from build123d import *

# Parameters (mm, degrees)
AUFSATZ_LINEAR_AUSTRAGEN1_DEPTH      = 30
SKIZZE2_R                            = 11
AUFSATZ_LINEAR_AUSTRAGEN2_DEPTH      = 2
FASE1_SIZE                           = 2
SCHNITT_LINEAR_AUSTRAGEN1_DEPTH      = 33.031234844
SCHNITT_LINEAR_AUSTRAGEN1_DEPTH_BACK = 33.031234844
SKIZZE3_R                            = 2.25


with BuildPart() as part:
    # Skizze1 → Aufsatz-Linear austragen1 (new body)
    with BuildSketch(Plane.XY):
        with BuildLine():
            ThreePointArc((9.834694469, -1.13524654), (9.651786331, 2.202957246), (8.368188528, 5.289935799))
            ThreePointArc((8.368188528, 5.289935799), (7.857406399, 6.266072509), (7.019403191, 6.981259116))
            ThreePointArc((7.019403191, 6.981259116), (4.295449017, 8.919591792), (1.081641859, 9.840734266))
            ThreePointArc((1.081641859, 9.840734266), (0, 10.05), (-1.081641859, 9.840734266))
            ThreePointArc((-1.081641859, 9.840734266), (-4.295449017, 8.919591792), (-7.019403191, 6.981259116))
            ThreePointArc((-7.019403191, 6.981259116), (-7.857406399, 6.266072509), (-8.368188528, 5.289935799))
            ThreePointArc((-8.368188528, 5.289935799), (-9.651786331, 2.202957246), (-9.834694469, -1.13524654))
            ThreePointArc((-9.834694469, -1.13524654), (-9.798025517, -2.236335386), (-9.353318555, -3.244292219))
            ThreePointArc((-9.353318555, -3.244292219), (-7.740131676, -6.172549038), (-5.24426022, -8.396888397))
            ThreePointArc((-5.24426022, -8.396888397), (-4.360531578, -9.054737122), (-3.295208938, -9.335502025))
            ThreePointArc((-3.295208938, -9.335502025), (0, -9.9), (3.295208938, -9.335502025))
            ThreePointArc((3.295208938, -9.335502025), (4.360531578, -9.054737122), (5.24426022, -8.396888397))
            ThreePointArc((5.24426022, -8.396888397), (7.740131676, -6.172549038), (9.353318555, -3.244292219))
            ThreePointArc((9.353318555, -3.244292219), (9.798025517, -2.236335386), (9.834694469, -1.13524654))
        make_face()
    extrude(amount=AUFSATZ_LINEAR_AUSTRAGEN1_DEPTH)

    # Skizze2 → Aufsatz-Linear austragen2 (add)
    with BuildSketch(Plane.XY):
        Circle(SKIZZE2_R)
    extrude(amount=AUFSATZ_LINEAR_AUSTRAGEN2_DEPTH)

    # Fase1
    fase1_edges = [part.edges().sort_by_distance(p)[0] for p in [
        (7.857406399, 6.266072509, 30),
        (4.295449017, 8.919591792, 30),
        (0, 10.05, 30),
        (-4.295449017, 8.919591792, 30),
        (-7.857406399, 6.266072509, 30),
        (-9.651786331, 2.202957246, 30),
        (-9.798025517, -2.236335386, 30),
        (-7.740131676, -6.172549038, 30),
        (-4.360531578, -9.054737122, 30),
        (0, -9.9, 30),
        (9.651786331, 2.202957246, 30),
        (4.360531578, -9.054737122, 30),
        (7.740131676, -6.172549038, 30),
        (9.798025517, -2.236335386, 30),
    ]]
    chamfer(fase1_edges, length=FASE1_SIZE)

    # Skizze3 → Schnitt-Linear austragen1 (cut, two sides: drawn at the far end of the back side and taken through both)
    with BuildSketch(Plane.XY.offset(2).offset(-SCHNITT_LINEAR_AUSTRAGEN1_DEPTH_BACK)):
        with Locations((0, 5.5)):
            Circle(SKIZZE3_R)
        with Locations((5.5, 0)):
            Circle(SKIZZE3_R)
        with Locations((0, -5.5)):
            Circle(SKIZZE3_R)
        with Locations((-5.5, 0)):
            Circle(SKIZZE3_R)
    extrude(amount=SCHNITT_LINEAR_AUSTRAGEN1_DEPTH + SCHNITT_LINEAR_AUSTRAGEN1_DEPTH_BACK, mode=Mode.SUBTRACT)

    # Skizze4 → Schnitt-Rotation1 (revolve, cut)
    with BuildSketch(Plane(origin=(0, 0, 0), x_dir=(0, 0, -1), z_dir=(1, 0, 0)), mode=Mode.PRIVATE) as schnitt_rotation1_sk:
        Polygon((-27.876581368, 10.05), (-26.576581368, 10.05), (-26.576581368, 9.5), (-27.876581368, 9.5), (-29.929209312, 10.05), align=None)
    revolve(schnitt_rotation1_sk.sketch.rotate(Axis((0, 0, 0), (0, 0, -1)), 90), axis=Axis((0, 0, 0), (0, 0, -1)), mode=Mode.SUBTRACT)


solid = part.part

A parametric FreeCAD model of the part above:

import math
import FreeCAD as App
import Part
import Sketcher
Q = App.Units.Quantity


def edges_at(feature, points):
    """Names of the edges that pass closest to the given points."""
    edges = feature.Shape.Edges
    near = lambda p: min(range(len(edges)), key=lambda i: edges[i].distToShape(Part.Vertex(*p))[0])
    return sorted({f"Edge{near(p) + 1}" for p in points})


def add_polygon(sketch, points):
    """Adds a closed chain of lines whose ends are joined by coincident constraints."""
    first, n = sketch.GeometryCount, len(points)
    for a, b in zip(points, points[1:] + points[:1]):
        sketch.addGeometry(Part.LineSegment(App.Vector(*a, 0), App.Vector(*b, 0)), False)
    for i in range(n):
        sketch.addConstraint(Sketcher.Constraint("Coincident", first + i, 2, first + (i + 1) % n, 1))

doc = App.newDocument("Part")
params = doc.addObject("Spreadsheet::Sheet", "Params")
for row, (alias, value) in enumerate([
    ("sketch1_radius", "9.9 mm"),
    ("sketch1_radius2", "2.9 mm"),
    ("pad1_length", "30 mm"),
    ("sketch2_diameter", "22 mm"),
    ("pad2_length", "2 mm"),
    ("chamfer_size", "2 mm"),
    ("sketch3_diameter", "4.5 mm"),
    ("sketch4_height", "1.3 mm"),
    ("sketch4_width", "0.55 mm"),
    ("groove_angle", "360 deg"),
], start=1):
    params.set(f"A{row}", alias)
    params.set(f"B{row}", "=" + value)
    params.setAlias(f"B{row}", alias)

body = doc.addObject("PartDesign::Body", "Body")

sketch1 = body.newObject("Sketcher::SketchObject", "Sketch")
sketch1.AttachmentSupport = (doc.getObject("XY_Plane"), [""])
sketch1.MapMode = "FlatFace"
sketch1.addGeometry([
    Part.ArcOfCircle(Part.Circle(App.Vector(0, 0, 0), App.Vector(0, 0, 1), 9.9), math.radians(-7), math.radians(32)),
    Part.ArcOfCircle(Part.Circle(App.Vector(5.6, 4.5, 0), App.Vector(0, 0, 1), 2.9), math.radians(17), math.radians(60)),
    Part.ArcOfCircle(Part.Circle(App.Vector(0, 0, 0), App.Vector(0, 0, 1), 9.9), math.radians(45), math.radians(84)),
    Part.ArcOfCircle(Part.Circle(App.Vector(0, 7.1, 0), App.Vector(0, 0, 1), 2.9), math.radians(68), math.radians(112)),
    Part.ArcOfCircle(Part.Circle(App.Vector(0, 0, 0), App.Vector(0, 0, 1), 9.9), math.radians(96), math.radians(135)),
    Part.ArcOfCircle(Part.Circle(App.Vector(-5.6, 4.5, 0), App.Vector(0, 0, 1), 2.9), math.radians(120), math.radians(163)),
    Part.ArcOfCircle(Part.Circle(App.Vector(0, 0, 0), App.Vector(0, 0, 1), 9.9), math.radians(148), math.radians(187)),
    Part.ArcOfCircle(Part.Circle(App.Vector(-7, -1.6, 0), App.Vector(0, 0, 1), 2.9), math.radians(171), math.radians(215)),
    Part.ArcOfCircle(Part.Circle(App.Vector(0, 0, 0), App.Vector(0, 0, 1), 9.9), math.radians(-161), math.radians(-122)),
    Part.ArcOfCircle(Part.Circle(App.Vector(-3.1, -6.4, 0), App.Vector(0, 0, 1), 2.9), math.radians(-138), math.radians(-94)),
    Part.ArcOfCircle(Part.Circle(App.Vector(0, 0, 0), App.Vector(0, 0, 1), 9.9), math.radians(-109), math.radians(-71)),
    Part.ArcOfCircle(Part.Circle(App.Vector(3.1, -6.4, 0), App.Vector(0, 0, 1), 2.9), math.radians(-86), math.radians(-42)),
    Part.ArcOfCircle(Part.Circle(App.Vector(0, 0, 0), App.Vector(0, 0, 1), 9.9), math.radians(-58), math.radians(-19)),
    Part.ArcOfCircle(Part.Circle(App.Vector(7, -1.6, 0), App.Vector(0, 0, 1), 2.9), math.radians(-35), math.radians(9)),
], False)
sketch1.addConstraint([
    Sketcher.Constraint("Coincident", 0, 2, 1, 1),
    Sketcher.Constraint("Coincident", 1, 2, 2, 1),
    Sketcher.Constraint("Coincident", 2, 2, 3, 1),
    Sketcher.Constraint("Coincident", 3, 2, 4, 1),
    Sketcher.Constraint("Coincident", 4, 2, 5, 1),
    Sketcher.Constraint("Coincident", 5, 2, 6, 1),
    Sketcher.Constraint("Coincident", 6, 2, 7, 1),
    Sketcher.Constraint("Coincident", 7, 2, 8, 1),
    Sketcher.Constraint("Coincident", 8, 2, 9, 1),
    Sketcher.Constraint("Coincident", 9, 2, 10, 1),
    Sketcher.Constraint("Coincident", 10, 2, 11, 1),
    Sketcher.Constraint("Coincident", 11, 2, 12, 1),
    Sketcher.Constraint("Coincident", 12, 2, 13, 1),
    Sketcher.Constraint("Coincident", 13, 2, 0, 1),
    Sketcher.Constraint("Coincident", 0, 3, -1, 1),
    Sketcher.Constraint("Coincident", 2, 3, -1, 1),
    Sketcher.Constraint("Coincident", 4, 3, -1, 1),
    Sketcher.Constraint("Coincident", 6, 3, -1, 1),
    Sketcher.Constraint("Coincident", 8, 3, -1, 1),
    Sketcher.Constraint("Coincident", 10, 3, -1, 1),
    Sketcher.Constraint("Coincident", 12, 3, -1, 1),
    Sketcher.Constraint("Equal", 0, 2),
    Sketcher.Constraint("Equal", 1, 3),
    Sketcher.Constraint("Equal", 2, 4),
    Sketcher.Constraint("Equal", 3, 5),
    Sketcher.Constraint("Equal", 4, 6),
    Sketcher.Constraint("Equal", 5, 7),
    Sketcher.Constraint("Equal", 6, 8),
    Sketcher.Constraint("Equal", 7, 9),
    Sketcher.Constraint("Equal", 8, 10),
    Sketcher.Constraint("Equal", 9, 11),
    Sketcher.Constraint("Equal", 10, 12),
    Sketcher.Constraint("Equal", 11, 13),
    Sketcher.Constraint("Symmetric", 1, 3, 5, 3, -2),
    Sketcher.Constraint("Symmetric", 9, 3, 11, 3, -2),
    Sketcher.Constraint("Symmetric", 7, 3, 13, 3, -2),
    Sketcher.Constraint("PointOnObject", 3, 3, -2),
    Sketcher.Constraint("Radius", 0, Q("9.9 mm")),
    Sketcher.Constraint("Radius", 1, Q("2.9 mm")),
    Sketcher.Constraint("DistanceY", -1, 1, 3, 3, Q("7.15 mm")),
    Sketcher.Constraint("DistanceY", 0, 2, 2, 2, Q("4.550798 mm")),
    Sketcher.Constraint("DistanceX", 6, 2, 5, 3, Q("4.244599 mm")),
    Sketcher.Constraint("DistanceY", 6, 2, 5, 3, Q("5.593199 mm")),
    Sketcher.Constraint("DistanceX", 9, 3, -1, 1, Q("3.102269 mm")),
    Sketcher.Constraint("DistanceX", 7, 2, -1, 1, Q("9.353319 mm")),
    Sketcher.Constraint("DistanceX", 8, 2, -1, 1, Q("5.24426 mm")),
])
sketch1.setExpression("Constraints[37]", "Params.sketch1_radius")
sketch1.setExpression("Constraints[38]", "Params.sketch1_radius2")
pad1 = body.newObject("PartDesign::Pad", "Pad")
pad1.Profile = sketch1
pad1.setExpression("Length", "Params.pad1_length")

sketch2 = body.newObject("Sketcher::SketchObject", "Sketch001")
sketch2.AttachmentSupport = (doc.getObject("XY_Plane"), [""])
sketch2.MapMode = "FlatFace"
sketch2.addGeometry(Part.Circle(App.Vector(0, 0, 0), App.Vector(0, 0, 1), 11), False)
sketch2.addConstraint([
    Sketcher.Constraint("Coincident", 0, 3, -1, 1),
    Sketcher.Constraint("Diameter", 0, Q("22 mm")),
])
sketch2.setExpression("Constraints[1]", "Params.sketch2_diameter")
pad2 = body.newObject("PartDesign::Pad", "Pad001")
pad2.Profile = sketch2
pad2.setExpression("Length", "Params.pad2_length")
doc.recompute()

chamfer = body.newObject("PartDesign::Chamfer", "Chamfer")
chamfer.Base = (pad2, edges_at(pad2, [
    (7.857, 6.266, 30),
    (4.295, 8.92, 30),
    (0, 10.05, 30),
    (-4.295, 8.92, 30),
    (-7.857, 6.266, 30),
    (-9.652, 2.203, 30),
    (-9.798, -2.236, 30),
    (-7.74, -6.173, 30),
    (-4.361, -9.055, 30),
    (0, -9.9, 30),
    (9.652, 2.203, 30),
    (4.361, -9.055, 30),
    (7.74, -6.173, 30),
    (9.798, -2.236, 30),
]))
chamfer.setExpression("Size", "Params.chamfer_size")

sketch3 = body.newObject("Sketcher::SketchObject", "Sketch002")
sketch3.AttachmentSupport = (doc.getObject("XY_Plane"), [""])
sketch3.MapMode = "FlatFace"
sketch3.AttachmentOffset = App.Placement(App.Vector(0, 0, 2), App.Rotation())
sketch3.addGeometry([
    Part.Circle(App.Vector(0, 5.5, 0), App.Vector(0, 0, 1), 2.2),
    Part.Circle(App.Vector(5.5, 0, 0), App.Vector(0, 0, 1), 2.2),
    Part.Circle(App.Vector(0, -5.5, 0), App.Vector(0, 0, 1), 2.2),
    Part.Circle(App.Vector(-5.5, 0, 0), App.Vector(0, 0, 1), 2.2),
], False)
sketch3.addConstraint([
    Sketcher.Constraint("Equal", 0, 1),
    Sketcher.Constraint("Equal", 1, 2),
    Sketcher.Constraint("Equal", 2, 3),
    Sketcher.Constraint("Symmetric", 0, 3, 2, 3, -1, 1),
    Sketcher.Constraint("Symmetric", 1, 3, 3, 3, -1, 1),
    Sketcher.Constraint("PointOnObject", 0, 3, -2),
    Sketcher.Constraint("PointOnObject", 1, 3, -1),
    Sketcher.Constraint("Diameter", 0, Q("4.5 mm")),
    Sketcher.Constraint("DistanceY", 2, 3, 0, 3, Q("11 mm")),
    Sketcher.Constraint("DistanceX", 3, 3, 1, 3, Q("11 mm")),
])
sketch3.setExpression("Constraints[7]", "Params.sketch3_diameter")
pocket1 = body.newObject("PartDesign::Pocket", "Pocket")
pocket1.Profile = sketch3
pocket1.Type = "ThroughAll"
pocket1.Midplane = True

sketch4 = body.newObject("Sketcher::SketchObject", "Sketch003")
sketch4.AttachmentSupport = (doc.getObject("YZ_Plane"), [""])
sketch4.MapMode = "FlatFace"
add_polygon(sketch4, [(10.1, 26.6), (10.1, 29.9), (9.5, 27.9), (9.5, 26.6)])
sketch4.addConstraint([
    Sketcher.Constraint("Vertical", 0),
    Sketcher.Constraint("Vertical", 2),
    Sketcher.Constraint("Horizontal", 3),
    Sketcher.Constraint("Angle", 1, Q("-105 deg")),
    Sketcher.Constraint("DistanceY", 2, 2, 2, 1, Q("1.3 mm")),
    Sketcher.Constraint("DistanceX", 3, 1, 3, 2, Q("0.55 mm")),
    Sketcher.Constraint("DistanceX", -1, 1, 1, 2, Q("9.5 mm")),
    Sketcher.Constraint("DistanceY", -1, 1, 0, 2, Q("29.929209 mm")),
])
sketch4.setExpression("Constraints[8]", "Params.sketch4_height")
sketch4.setExpression("Constraints[9]", "Params.sketch4_width")
groove = body.newObject("PartDesign::Groove", "Groove")
groove.Profile = sketch4
groove.ReferenceAxis = (sketch4, ["V_Axis"])
groove.setExpression("Angle", "Params.groove_angle")

doc.recompute()
